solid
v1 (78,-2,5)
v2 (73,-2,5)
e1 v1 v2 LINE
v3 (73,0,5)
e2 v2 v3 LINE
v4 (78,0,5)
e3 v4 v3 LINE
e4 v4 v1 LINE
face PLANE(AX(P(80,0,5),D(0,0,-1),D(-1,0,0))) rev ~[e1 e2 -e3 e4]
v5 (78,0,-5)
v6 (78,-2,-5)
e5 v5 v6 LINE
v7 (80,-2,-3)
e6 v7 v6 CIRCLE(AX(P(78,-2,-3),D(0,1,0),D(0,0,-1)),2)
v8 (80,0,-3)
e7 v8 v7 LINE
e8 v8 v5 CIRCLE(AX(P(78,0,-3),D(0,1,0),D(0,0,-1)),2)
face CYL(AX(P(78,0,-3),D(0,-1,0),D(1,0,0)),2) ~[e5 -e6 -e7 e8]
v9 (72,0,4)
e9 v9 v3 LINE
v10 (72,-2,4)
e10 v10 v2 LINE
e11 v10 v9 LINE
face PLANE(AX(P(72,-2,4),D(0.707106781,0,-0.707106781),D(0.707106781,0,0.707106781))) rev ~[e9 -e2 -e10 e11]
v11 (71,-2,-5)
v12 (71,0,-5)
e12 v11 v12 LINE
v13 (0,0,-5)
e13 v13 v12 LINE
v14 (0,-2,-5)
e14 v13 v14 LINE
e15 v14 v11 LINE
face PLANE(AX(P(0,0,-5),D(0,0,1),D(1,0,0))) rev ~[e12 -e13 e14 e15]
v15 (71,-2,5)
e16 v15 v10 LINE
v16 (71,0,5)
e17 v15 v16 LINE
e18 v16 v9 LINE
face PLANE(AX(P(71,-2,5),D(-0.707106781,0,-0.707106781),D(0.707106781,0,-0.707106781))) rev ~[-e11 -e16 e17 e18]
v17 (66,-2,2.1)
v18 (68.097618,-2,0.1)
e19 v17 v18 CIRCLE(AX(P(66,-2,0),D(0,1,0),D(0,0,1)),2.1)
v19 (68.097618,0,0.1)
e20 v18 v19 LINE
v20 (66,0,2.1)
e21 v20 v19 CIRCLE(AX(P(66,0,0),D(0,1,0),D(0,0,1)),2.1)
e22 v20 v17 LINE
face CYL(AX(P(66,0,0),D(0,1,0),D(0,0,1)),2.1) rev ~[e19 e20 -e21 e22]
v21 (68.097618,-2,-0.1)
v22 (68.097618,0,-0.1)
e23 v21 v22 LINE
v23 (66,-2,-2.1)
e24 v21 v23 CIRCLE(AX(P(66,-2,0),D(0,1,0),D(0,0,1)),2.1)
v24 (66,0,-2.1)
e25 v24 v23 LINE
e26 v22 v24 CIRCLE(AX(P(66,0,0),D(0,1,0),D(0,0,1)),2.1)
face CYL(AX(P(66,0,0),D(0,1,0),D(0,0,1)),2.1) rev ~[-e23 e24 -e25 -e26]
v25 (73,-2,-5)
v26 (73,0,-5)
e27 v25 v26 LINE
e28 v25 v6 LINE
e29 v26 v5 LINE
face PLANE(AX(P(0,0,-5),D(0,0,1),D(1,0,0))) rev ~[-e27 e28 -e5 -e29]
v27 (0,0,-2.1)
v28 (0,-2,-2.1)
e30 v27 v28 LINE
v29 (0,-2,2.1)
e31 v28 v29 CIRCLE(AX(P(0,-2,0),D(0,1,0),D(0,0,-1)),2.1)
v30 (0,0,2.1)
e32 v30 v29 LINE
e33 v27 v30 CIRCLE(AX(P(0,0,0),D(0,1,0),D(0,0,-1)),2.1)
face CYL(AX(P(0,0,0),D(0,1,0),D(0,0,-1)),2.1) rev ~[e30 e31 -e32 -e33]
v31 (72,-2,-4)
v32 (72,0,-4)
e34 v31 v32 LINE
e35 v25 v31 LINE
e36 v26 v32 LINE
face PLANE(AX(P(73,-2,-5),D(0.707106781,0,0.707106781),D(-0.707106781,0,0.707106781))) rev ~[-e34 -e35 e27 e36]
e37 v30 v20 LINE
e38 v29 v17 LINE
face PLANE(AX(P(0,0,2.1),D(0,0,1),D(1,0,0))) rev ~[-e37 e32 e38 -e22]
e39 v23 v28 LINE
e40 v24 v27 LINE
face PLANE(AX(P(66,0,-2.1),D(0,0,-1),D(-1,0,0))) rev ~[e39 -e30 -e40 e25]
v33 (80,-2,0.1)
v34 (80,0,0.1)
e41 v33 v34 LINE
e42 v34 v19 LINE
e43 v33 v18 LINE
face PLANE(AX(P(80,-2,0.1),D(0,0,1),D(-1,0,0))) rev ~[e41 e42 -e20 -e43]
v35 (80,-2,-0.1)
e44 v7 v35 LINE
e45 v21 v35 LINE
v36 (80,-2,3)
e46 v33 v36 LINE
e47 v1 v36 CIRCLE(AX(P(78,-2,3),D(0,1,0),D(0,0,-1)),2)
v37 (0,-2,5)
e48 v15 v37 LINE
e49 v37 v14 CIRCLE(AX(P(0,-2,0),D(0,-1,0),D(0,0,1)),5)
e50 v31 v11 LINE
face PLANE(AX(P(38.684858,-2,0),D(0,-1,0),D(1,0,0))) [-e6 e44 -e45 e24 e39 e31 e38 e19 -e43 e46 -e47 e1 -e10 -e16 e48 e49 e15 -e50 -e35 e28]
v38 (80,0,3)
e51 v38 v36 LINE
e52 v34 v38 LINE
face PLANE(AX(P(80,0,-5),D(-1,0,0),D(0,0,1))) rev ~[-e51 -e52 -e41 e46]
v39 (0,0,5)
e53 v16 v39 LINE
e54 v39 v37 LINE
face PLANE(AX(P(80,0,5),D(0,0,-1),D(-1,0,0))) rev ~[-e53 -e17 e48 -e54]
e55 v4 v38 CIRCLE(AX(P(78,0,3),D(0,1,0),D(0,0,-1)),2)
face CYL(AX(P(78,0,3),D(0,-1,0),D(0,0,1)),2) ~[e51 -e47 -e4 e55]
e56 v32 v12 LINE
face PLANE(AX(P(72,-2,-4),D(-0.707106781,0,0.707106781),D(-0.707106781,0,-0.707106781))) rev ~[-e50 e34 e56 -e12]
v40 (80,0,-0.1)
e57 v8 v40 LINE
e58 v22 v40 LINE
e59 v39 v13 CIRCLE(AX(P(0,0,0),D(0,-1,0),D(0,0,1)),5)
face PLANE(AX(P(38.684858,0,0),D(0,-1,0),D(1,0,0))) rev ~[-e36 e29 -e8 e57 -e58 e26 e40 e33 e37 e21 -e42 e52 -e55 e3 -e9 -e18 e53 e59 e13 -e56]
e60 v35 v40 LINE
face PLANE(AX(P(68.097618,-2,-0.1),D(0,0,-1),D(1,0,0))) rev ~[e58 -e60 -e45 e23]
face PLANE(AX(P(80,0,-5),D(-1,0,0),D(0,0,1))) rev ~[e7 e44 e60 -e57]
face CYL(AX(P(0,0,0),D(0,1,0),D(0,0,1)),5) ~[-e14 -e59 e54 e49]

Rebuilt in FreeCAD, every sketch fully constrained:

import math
import FreeCAD as App
import Part
import Sketcher
from FreeCAD import Vector


def edges_at(feature, points):
    """Names of the edges that pass closest to the given points."""
    edges = feature.Shape.Edges
    near = lambda p: min(range(len(edges)), key=lambda i: edges[i].distToShape(Part.Vertex(*p))[0])
    return sorted({f"Edge{near(p) + 1}" for p in points})


def add_polygon(sketch, points):
    """Adds a closed chain of lines whose ends are joined by coincident constraints."""
    first, n = sketch.GeometryCount, len(points)
    for a, b in zip(points, points[1:] + points[:1]):
        sketch.addGeometry(Part.LineSegment(App.Vector(*a, 0), App.Vector(*b, 0)), False)
    for i in range(n):
        sketch.addConstraint(Sketcher.Constraint("Coincident", first + i, 2, first + (i + 1) % n, 1))

doc = App.newDocument("Part")
body = doc.addObject("PartDesign::Body", "Body")

# Sketch on XZ plane
sketch1 = body.newObject("Sketcher::SketchObject", "Sketch")
sketch1.AttachmentSupport = (doc.getObject("XZ_Plane"), [""])
sketch1.MapMode = "FlatFace"
sketch1.addGeometry(Part.LineSegment(Vector(80, 5, 0), Vector(0, 5, 0)), False)
sketch1.addGeometry(Part.ArcOfCircle(Part.Circle(Vector(0, 0, 0), Vector(0, 0, 1), 5), math.radians(90), math.radians(270)), False)
sketch1.addGeometry(Part.LineSegment(Vector(0, -5, 0), Vector(80, -5, 0)), False)
sketch1.addGeometry(Part.LineSegment(Vector(80, -5, 0), Vector(80, 5, 0)), False)
sketch1.addGeometry(Part.ArcOfCircle(Part.Circle(Vector(66, 0, 0), Vector(0, 0, 1), 2.1), math.radians(-90), math.radians(90)), False)
sketch1.addGeometry(Part.LineSegment(Vector(66, -2.1, 0), Vector(0, -2.1, 0)), False)
sketch1.addGeometry(Part.ArcOfCircle(Part.Circle(Vector(0, 0, 0), Vector(0, 0, 1), 2.1), math.radians(90), math.radians(270)), False)
sketch1.addGeometry(Part.LineSegment(Vector(0, 2.1, 0), Vector(66, 2.1, 0)), False)
sketch1.addConstraint(Sketcher.Constraint("Tangent", 0, 2, 1, 1))
sketch1.addConstraint(Sketcher.Constraint("Tangent", 1, 2, 2, 1))
sketch1.addConstraint(Sketcher.Constraint("Coincident", 2, 2, 3, 1))
sketch1.addConstraint(Sketcher.Constraint("Coincident", 3, 2, 0, 1))
sketch1.addConstraint(Sketcher.Constraint("Tangent", 4, 1, 5, 1))
sketch1.addConstraint(Sketcher.Constraint("Tangent", 5, 2, 6, 2))
sketch1.addConstraint(Sketcher.Constraint("Tangent", 6, 1, 7, 1))
sketch1.addConstraint(Sketcher.Constraint("Tangent", 7, 2, 4, 2))
sketch1.addConstraint(Sketcher.Constraint("Horizontal", 0))
sketch1.addConstraint(Sketcher.Constraint("Horizontal", 2))
sketch1.addConstraint(Sketcher.Constraint("Vertical", 3))
sketch1.addConstraint(Sketcher.Constraint("Horizontal", 5))
sketch1.addConstraint(Sketcher.Constraint("Horizontal", 7))
sketch1.addConstraint(Sketcher.Constraint("Coincident", 1, 3, -1, 1))
sketch1.addConstraint(Sketcher.Constraint("Coincident", 6, 3, -1, 1))
sketch1.addConstraint(Sketcher.Constraint("Radius", 1, 5.0))
sketch1.addConstraint(Sketcher.Constraint("Radius", 4, 2.1))
sketch1.addConstraint(Sketcher.Constraint("DistanceX", 0, 2, 0, 1, 80.0))
sketch1.addConstraint(Sketcher.Constraint("DistanceX", 5, 2, 5, 1, 66.0))
pad1 = body.newObject("PartDesign::Pad", "Pad")
pad1.Profile = sketch1
pad1.Length = 2

# Sketch on XZ plane
sketch2 = body.newObject("Sketcher::SketchObject", "Sketch001")
sketch2.AttachmentSupport = (doc.getObject("XZ_Plane"), [""])
sketch2.MapMode = "FlatFace"
sketch2.AttachmentOffset = App.Placement(Vector(0, 0, 2), App.Rotation())
add_polygon(sketch2, [(73, 5), (71, 5), (72, 4)])  # lines 0-2
add_polygon(sketch2, [(73, -5), (72, -4), (71, -5)])  # lines 3-5
sketch2.addConstraint(Sketcher.Constraint("Horizontal", 0))
sketch2.addConstraint(Sketcher.Constraint("Horizontal", 5))
sketch2.addConstraint(Sketcher.Constraint("Symmetric", 1, 2, 3, 2, -1))
sketch2.addConstraint(Sketcher.Constraint("Symmetric", 0, 2, 4, 2, -1))
sketch2.addConstraint(Sketcher.Constraint("Perpendicular", 1, 2))
sketch2.addConstraint(Sketcher.Constraint("Perpendicular", 2, 3))
sketch2.addConstraint(Sketcher.Constraint("Perpendicular", 3, 4))
sketch2.addConstraint(Sketcher.Constraint("DistanceX", 0, 2, 0, 1, 2.0))
sketch2.addConstraint(Sketcher.Constraint("DistanceX", -1, 1, 0, 2, 71.0))
sketch2.addConstraint(Sketcher.Constraint("DistanceY", -1, 1, 0, 2, 5.0))
pocket1 = body.newObject("PartDesign::Pocket", "Pocket")
pocket1.Profile = sketch2
pocket1.Type = "ThroughAll"
doc.recompute()

fillet = body.newObject("PartDesign::Fillet", "Fillet")
fillet.Base = (pocket1, edges_at(pocket1, [(80, -1, 5), (80, -1, -5)]))
fillet.Radius = 2

# Sketch on XZ plane
sketch3 = body.newObject("Sketcher::SketchObject", "Sketch002")
sketch3.AttachmentSupport = (doc.getObject("XZ_Plane"), [""])
sketch3.MapMode = "FlatFace"
sketch3.AttachmentOffset = App.Placement(Vector(0, 0, 2), App.Rotation())
sketch3.addGeometry(Part.LineSegment(Vector(80, -0.1, 0), Vector(80, 0.1, 0)), False)
sketch3.addGeometry(Part.LineSegment(Vector(80, 0.1, 0), Vector(68.1, 0.1, 0)), False)
sketch3.addGeometry(Part.ArcOfCircle(Part.Circle(Vector(66, 0, 0), Vector(0, 0, 1), 2.1), math.radians(-2.73), math.radians(2.73)), False)
sketch3.addGeometry(Part.LineSegment(Vector(68.1, -0.1, 0), Vector(80, -0.1, 0)), False)
sketch3.addConstraint(Sketcher.Constraint("Coincident", 0, 2, 1, 1))
sketch3.addConstraint(Sketcher.Constraint("Coincident", 1, 2, 2, 2))
sketch3.addConstraint(Sketcher.Constraint("Coincident", 2, 1, 3, 1))
sketch3.addConstraint(Sketcher.Constraint("Coincident", 3, 2, 0, 1))
sketch3.addConstraint(Sketcher.Constraint("Vertical", 0))
sketch3.addConstraint(Sketcher.Constraint("Horizontal", 1))
sketch3.addConstraint(Sketcher.Constraint("Horizontal", 3))
sketch3.addConstraint(Sketcher.Constraint("Symmetric", 1, 2, 2, 1, -1))
sketch3.addConstraint(Sketcher.Constraint("Radius", 2, 2.1))
sketch3.addConstraint(Sketcher.Constraint("DistanceY", 0, 1, 0, 2, 0.2))
sketch3.addConstraint(Sketcher.Constraint("DistanceX", -1, 1, 2, 3, 66.0))
sketch3.addConstraint(Sketcher.Constraint("DistanceX", -1, 1, 0, 2, 80.0))
pocket2 = body.newObject("PartDesign::Pocket", "Pocket001")
pocket2.Profile = sketch3
pocket2.Type = "ThroughAll"

doc.recompute()
